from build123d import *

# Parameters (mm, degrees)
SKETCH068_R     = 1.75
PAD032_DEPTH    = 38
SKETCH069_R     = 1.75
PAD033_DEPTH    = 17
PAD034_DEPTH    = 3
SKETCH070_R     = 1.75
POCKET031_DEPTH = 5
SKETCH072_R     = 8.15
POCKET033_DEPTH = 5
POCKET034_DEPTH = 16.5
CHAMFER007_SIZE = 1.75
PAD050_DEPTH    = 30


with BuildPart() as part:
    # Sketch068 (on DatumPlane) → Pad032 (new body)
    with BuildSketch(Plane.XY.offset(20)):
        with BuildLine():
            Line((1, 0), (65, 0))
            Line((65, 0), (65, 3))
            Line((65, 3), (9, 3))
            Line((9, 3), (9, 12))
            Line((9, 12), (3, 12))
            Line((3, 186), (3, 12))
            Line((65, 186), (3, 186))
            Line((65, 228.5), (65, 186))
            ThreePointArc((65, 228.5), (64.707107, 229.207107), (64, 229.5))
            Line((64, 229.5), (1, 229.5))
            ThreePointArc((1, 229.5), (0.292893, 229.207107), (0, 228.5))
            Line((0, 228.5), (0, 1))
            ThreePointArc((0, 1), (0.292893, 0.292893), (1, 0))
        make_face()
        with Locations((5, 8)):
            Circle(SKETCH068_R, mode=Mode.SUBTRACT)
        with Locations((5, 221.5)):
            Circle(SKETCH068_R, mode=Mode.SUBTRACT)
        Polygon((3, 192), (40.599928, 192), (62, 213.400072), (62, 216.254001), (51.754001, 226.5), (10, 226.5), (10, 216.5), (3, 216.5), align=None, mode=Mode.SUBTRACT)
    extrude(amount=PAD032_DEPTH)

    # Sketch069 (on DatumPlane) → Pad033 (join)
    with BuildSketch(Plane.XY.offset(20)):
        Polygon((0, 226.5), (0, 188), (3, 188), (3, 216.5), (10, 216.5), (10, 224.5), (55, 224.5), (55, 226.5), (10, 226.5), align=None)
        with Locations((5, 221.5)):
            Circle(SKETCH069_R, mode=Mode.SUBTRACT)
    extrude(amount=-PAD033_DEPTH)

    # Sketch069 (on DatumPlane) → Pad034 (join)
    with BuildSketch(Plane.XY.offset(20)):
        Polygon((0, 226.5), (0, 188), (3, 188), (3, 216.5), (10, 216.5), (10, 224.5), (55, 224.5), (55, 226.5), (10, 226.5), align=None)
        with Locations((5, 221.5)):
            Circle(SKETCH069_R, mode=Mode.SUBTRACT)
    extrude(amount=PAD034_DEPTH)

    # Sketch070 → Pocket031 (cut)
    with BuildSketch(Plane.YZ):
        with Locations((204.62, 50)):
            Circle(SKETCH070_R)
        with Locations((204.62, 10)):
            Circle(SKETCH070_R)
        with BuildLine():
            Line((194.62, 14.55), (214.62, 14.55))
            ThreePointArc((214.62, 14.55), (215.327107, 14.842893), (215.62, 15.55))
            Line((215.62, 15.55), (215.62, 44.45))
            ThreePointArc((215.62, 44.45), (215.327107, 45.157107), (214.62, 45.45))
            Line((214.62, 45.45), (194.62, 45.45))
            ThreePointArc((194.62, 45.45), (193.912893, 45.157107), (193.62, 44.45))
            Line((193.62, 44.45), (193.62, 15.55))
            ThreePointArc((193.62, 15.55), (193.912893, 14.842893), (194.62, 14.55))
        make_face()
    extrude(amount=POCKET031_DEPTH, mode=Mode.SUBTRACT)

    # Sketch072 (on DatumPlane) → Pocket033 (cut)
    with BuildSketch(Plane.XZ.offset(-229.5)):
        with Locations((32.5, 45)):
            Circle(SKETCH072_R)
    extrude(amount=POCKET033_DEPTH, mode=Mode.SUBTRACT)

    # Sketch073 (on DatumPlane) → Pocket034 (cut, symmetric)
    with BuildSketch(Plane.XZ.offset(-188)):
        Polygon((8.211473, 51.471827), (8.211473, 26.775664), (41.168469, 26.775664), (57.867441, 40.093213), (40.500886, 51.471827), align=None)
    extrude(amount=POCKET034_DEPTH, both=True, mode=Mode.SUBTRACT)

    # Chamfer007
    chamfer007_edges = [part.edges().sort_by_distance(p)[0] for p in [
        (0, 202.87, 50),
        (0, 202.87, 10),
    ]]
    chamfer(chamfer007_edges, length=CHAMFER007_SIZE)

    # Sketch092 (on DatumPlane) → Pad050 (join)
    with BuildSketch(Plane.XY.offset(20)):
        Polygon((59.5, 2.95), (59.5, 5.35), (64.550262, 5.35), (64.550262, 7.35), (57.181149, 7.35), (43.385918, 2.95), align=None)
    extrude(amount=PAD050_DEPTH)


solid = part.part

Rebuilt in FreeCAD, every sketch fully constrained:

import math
import FreeCAD as App
import Part
import Sketcher
from FreeCAD import Vector
Q = App.Units.Quantity


def edges_at(feature, points):
    """Names of the edges that pass closest to the given points."""
    edges = feature.Shape.Edges
    near = lambda p: min(range(len(edges)), key=lambda i: edges[i].distToShape(Part.Vertex(*p))[0])
    return sorted({f"Edge{near(p) + 1}" for p in points})


def add_polygon(sketch, points):
    """Adds a closed chain of lines whose ends are joined by coincident constraints."""
    first, n = sketch.GeometryCount, len(points)
    for a, b in zip(points, points[1:] + points[:1]):
        sketch.addGeometry(Part.LineSegment(App.Vector(*a, 0), App.Vector(*b, 0)), False)
    for i in range(n):
        sketch.addConstraint(Sketcher.Constraint("Coincident", first + i, 2, first + (i + 1) % n, 1))

doc = App.newDocument("Part")
body = doc.addObject("PartDesign::Body", "Body")

sketch1 = body.newObject("Sketcher::SketchObject", "Sketch")
sketch1.AttachmentSupport = (doc.getObject("XY_Plane"), [""])
sketch1.MapMode = "FlatFace"
sketch1.AttachmentOffset = App.Placement(Vector(0, 0, 20), App.Rotation())
sketch1.addGeometry(Part.LineSegment(Vector(1, 0, 0), Vector(65, 0, 0)), False)
sketch1.addGeometry(Part.LineSegment(Vector(65, 0, 0), Vector(65, 3, 0)), False)
sketch1.addGeometry(Part.LineSegment(Vector(65, 3, 0), Vector(9, 3, 0)), False)
sketch1.addGeometry(Part.LineSegment(Vector(9, 3, 0), Vector(9, 12, 0)), False)
sketch1.addGeometry(Part.LineSegment(Vector(9, 12, 0), Vector(3, 12, 0)), False)
sketch1.addGeometry(Part.LineSegment(Vector(3, 12, 0), Vector(3, 186, 0)), False)
sketch1.addGeometry(Part.LineSegment(Vector(3, 186, 0), Vector(65, 186, 0)), False)
sketch1.addGeometry(Part.LineSegment(Vector(65, 186, 0), Vector(65, 228.5, 0)), False)
sketch1.addGeometry(Part.ArcOfCircle(Part.Circle(Vector(64, 228.5, 0), Vector(0, 0, 1), 1), math.radians(0), math.radians(90)), False)
sketch1.addGeometry(Part.LineSegment(Vector(64, 229.5, 0), Vector(1, 229.5, 0)), False)
sketch1.addGeometry(Part.ArcOfCircle(Part.Circle(Vector(1, 228.5, 0), Vector(0, 0, 1), 1), math.radians(90), math.radians(180)), False)
sketch1.addGeometry(Part.LineSegment(Vector(0, 228.5, 0), Vector(0, 1, 0)), False)
sketch1.addGeometry(Part.ArcOfCircle(Part.Circle(Vector(1, 1, 0), Vector(0, 0, 1), 1), math.radians(180), math.radians(270)), False)
sketch1.addGeometry(Part.Circle(Vector(5, 8, 0), Vector(0, 0, 1), 1.8), False)
sketch1.addGeometry(Part.Circle(Vector(5, 221.5, 0), Vector(0, 0, 1), 1.8), False)
add_polygon(sketch1, [(40.6, 192), (3, 192), (3, 216.5), (10, 216.5), (10, 226.5), (51.8, 226.5), (62, 216.3), (62, 213.4)])
sketch1.addConstraint(Sketcher.Constraint("Coincident", 0, 2, 1, 1))
sketch1.addConstraint(Sketcher.Constraint("Coincident", 1, 2, 2, 1))
sketch1.addConstraint(Sketcher.Constraint("Coincident", 2, 2, 3, 1))
sketch1.addConstraint(Sketcher.Constraint("Coincident", 3, 2, 4, 1))
sketch1.addConstraint(Sketcher.Constraint("Coincident", 4, 2, 5, 1))
sketch1.addConstraint(Sketcher.Constraint("Coincident", 5, 2, 6, 1))
sketch1.addConstraint(Sketcher.Constraint("Coincident", 6, 2, 7, 1))
sketch1.addConstraint(Sketcher.Constraint("Tangent", 7, 2, 8, 1))
sketch1.addConstraint(Sketcher.Constraint("Tangent", 8, 2, 9, 1))
sketch1.addConstraint(Sketcher.Constraint("Tangent", 9, 2, 10, 1))
sketch1.addConstraint(Sketcher.Constraint("Tangent", 10, 2, 11, 1))
sketch1.addConstraint(Sketcher.Constraint("Tangent", 11, 2, 12, 1))
sketch1.addConstraint(Sketcher.Constraint("Tangent", 12, 2, 0, 1))
sketch1.addConstraint(Sketcher.Constraint("Horizontal", 0))
sketch1.addConstraint(Sketcher.Constraint("Vertical", 1))
sketch1.addConstraint(Sketcher.Constraint("Horizontal", 2))
sketch1.addConstraint(Sketcher.Constraint("Vertical", 3))
sketch1.addConstraint(Sketcher.Constraint("Horizontal", 4))
sketch1.addConstraint(Sketcher.Constraint("Vertical", 5))
sketch1.addConstraint(Sketcher.Constraint("Horizontal", 6))
sketch1.addConstraint(Sketcher.Constraint("Vertical", 7))
sketch1.addConstraint(Sketcher.Constraint("Horizontal", 9))
sketch1.addConstraint(Sketcher.Constraint("Vertical", 11))
sketch1.addConstraint(Sketcher.Constraint("Horizontal", 15))
sketch1.addConstraint(Sketcher.Constraint("Vertical", 16))
sketch1.addConstraint(Sketcher.Constraint("Horizontal", 17))
sketch1.addConstraint(Sketcher.Constraint("Vertical", 18))
sketch1.addConstraint(Sketcher.Constraint("Horizontal", 19))
sketch1.addConstraint(Sketcher.Constraint("Vertical", 21))
sketch1.addConstraint(Sketcher.Constraint("Equal", 8, 10))
sketch1.addConstraint(Sketcher.Constraint("Equal", 10, 12))
sketch1.addConstraint(Sketcher.Constraint("Equal", 13, 14))
sketch1.addConstraint(Sketcher.Constraint("PointOnObject", 0, 2, -1))
sketch1.addConstraint(Sketcher.Constraint("PointOnObject", 10, 2, -2))
sketch1.addConstraint(Sketcher.Constraint("Perpendicular", 20, 22))
sketch1.addConstraint(Sketcher.Constraint("Vertical", 13, 3, 14, 3))
sketch1.addConstraint(Sketcher.Constraint("Vertical", 1, 2, 6, 2))
sketch1.addConstraint(Sketcher.Constraint("Vertical", 5, 2, 15, 2))
sketch1.addConstraint(Sketcher.Constraint("Radius", 8, 0.999999))
sketch1.addConstraint(Sketcher.Constraint("Diameter", 13, 3.5))
sketch1.addConstraint(Sketcher.Constraint("DistanceX", 0, 1, 0, 2, 64.0))
sketch1.addConstraint(Sketcher.Constraint("DistanceX", 2, 2, 2, 1, 56.0))
sketch1.addConstraint(Sketcher.Constraint("DistanceX", 4, 2, 4, 1, 6.0))
sketch1.addConstraint(Sketcher.Constraint("DistanceX", 17, 1, 17, 2, 7.0))
sketch1.addConstraint(Sketcher.Constraint("DistanceY", 1, 1, 1, 2, 3.0))
sketch1.addConstraint(Sketcher.Constraint("DistanceY", 3, 1, 3, 2, 9.0))
sketch1.addConstraint(Sketcher.Constraint("DistanceY", 5, 1, 5, 2, 174.0))
sketch1.addConstraint(Sketcher.Constraint("DistanceY", 18, 1, 18, 2, 10.0))
sketch1.addConstraint(Sketcher.Constraint("Angle", 20, Q("-45 deg")))
sketch1.addConstraint(Sketcher.Constraint("DistanceY", 7, 1, 7, 2, 42.5))
sketch1.addConstraint(Sketcher.Constraint("DistanceY", 16, 1, 16, 2, 24.5))
sketch1.addConstraint(Sketcher.Constraint("DistanceX", -1, 1, 13, 3, 5.0))
sketch1.addConstraint(Sketcher.Constraint("DistanceY", -1, 1, 13, 3, 8.0))
sketch1.addConstraint(Sketcher.Constraint("DistanceY", -1, 1, 15, 2, 192.0))
sketch1.addConstraint(Sketcher.Constraint("DistanceX", -1, 1, 20, 2, 62.0))
sketch1.addConstraint(Sketcher.Constraint("DistanceY", 14, 3, 10, 3, 7.000001))
sketch1.addConstraint(Sketcher.Constraint("DistanceX", 19, 1, 19, 2, 41.754001))
sketch1.addConstraint(Sketcher.Constraint("DistanceY", 21, 2, 21, 1, 2.853929))
pad1 = body.newObject("PartDesign::Pad", "Pad")
pad1.Profile = sketch1
pad1.Length = 38

sketch2 = body.newObject("Sketcher::SketchObject", "Sketch001")
sketch2.AttachmentSupport = (doc.getObject("XY_Plane"), [""])
sketch2.MapMode = "FlatFace"
sketch2.AttachmentOffset = App.Placement(Vector(0, 0, 20), App.Rotation())
add_polygon(sketch2, [(0, 226.5), (0, 188), (3, 188), (3, 216.5), (10, 216.5), (10, 224.5), (55, 224.5), (55, 226.5)])
sketch2.addGeometry(Part.Circle(Vector(5, 221.5, 0), Vector(0, 0, 1), 1.8), False)
sketch2.addConstraint(Sketcher.Constraint("Vertical", 0))
sketch2.addConstraint(Sketcher.Constraint("Horizontal", 1))
sketch2.addConstraint(Sketcher.Constraint("Vertical", 2))
sketch2.addConstraint(Sketcher.Constraint("Horizontal", 3))
sketch2.addConstraint(Sketcher.Constraint("Vertical", 4))
sketch2.addConstraint(Sketcher.Constraint("Horizontal", 5))
sketch2.addConstraint(Sketcher.Constraint("Vertical", 6))
sketch2.addConstraint(Sketcher.Constraint("Horizontal", 7))
sketch2.addConstraint(Sketcher.Constraint("PointOnObject", 0, 2, -2))
sketch2.addConstraint(Sketcher.Constraint("Diameter", 8, 3.5))
sketch2.addConstraint(Sketcher.Constraint("DistanceX", 1, 1, 1, 2, 3.0))
sketch2.addConstraint(Sketcher.Constraint("DistanceX", 3, 1, 3, 2, 7.0))
sketch2.addConstraint(Sketcher.Constraint("DistanceX", 5, 1, 5, 2, 45.0))
sketch2.addConstraint(Sketcher.Constraint("DistanceY", 4, 1, 4, 2, 8.0))
sketch2.addConstraint(Sketcher.Constraint("DistanceY", 6, 1, 6, 2, 2.0))
sketch2.addConstraint(Sketcher.Constraint("DistanceY", 0, 2, 0, 1, 38.5))
sketch2.addConstraint(Sketcher.Constraint("DistanceX", -1, 1, 8, 3, 5.0))
sketch2.addConstraint(Sketcher.Constraint("DistanceY", -1, 1, 0, 2, 188.0))
sketch2.addConstraint(Sketcher.Constraint("DistanceY", 2, 2, 8, 3, 5.0))
pad2 = body.newObject("PartDesign::Pad", "Pad001")
pad2.Profile = sketch2
pad2.Length = 17
pad2.Reversed = True

sketch3 = body.newObject("Sketcher::SketchObject", "Sketch002")
sketch3.AttachmentSupport = (doc.getObject("XY_Plane"), [""])
sketch3.MapMode = "FlatFace"
sketch3.AttachmentOffset = App.Placement(Vector(0, 0, 20), App.Rotation())
add_polygon(sketch3, [(0, 226.5), (0, 188), (3, 188), (3, 216.5), (10, 216.5), (10, 224.5), (55, 224.5), (55, 226.5)])
sketch3.addGeometry(Part.Circle(Vector(5, 221.5, 0), Vector(0, 0, 1), 1.8), False)
sketch3.addConstraint(Sketcher.Constraint("Vertical", 0))
sketch3.addConstraint(Sketcher.Constraint("Horizontal", 1))
sketch3.addConstraint(Sketcher.Constraint("Vertical", 2))
sketch3.addConstraint(Sketcher.Constraint("Horizontal", 3))
sketch3.addConstraint(Sketcher.Constraint("Vertical", 4))
sketch3.addConstraint(Sketcher.Constraint("Horizontal", 5))
sketch3.addConstraint(Sketcher.Constraint("Vertical", 6))
sketch3.addConstraint(Sketcher.Constraint("Horizontal", 7))
sketch3.addConstraint(Sketcher.Constraint("PointOnObject", 0, 2, -2))
sketch3.addConstraint(Sketcher.Constraint("Diameter", 8, 3.5))
sketch3.addConstraint(Sketcher.Constraint("DistanceX", 1, 1, 1, 2, 3.0))
sketch3.addConstraint(Sketcher.Constraint("DistanceX", 3, 1, 3, 2, 7.0))
sketch3.addConstraint(Sketcher.Constraint("DistanceX", 5, 1, 5, 2, 45.0))
sketch3.addConstraint(Sketcher.Constraint("DistanceY", 4, 1, 4, 2, 8.0))
sketch3.addConstraint(Sketcher.Constraint("DistanceY", 6, 1, 6, 2, 2.0))
sketch3.addConstraint(Sketcher.Constraint("DistanceY", 0, 2, 0, 1, 38.5))
sketch3.addConstraint(Sketcher.Constraint("DistanceX", -1, 1, 8, 3, 5.0))
sketch3.addConstraint(Sketcher.Constraint("DistanceY", -1, 1, 0, 2, 188.0))
sketch3.addConstraint(Sketcher.Constraint("DistanceY", 2, 2, 8, 3, 5.0))
pad3 = body.newObject("PartDesign::Pad", "Pad002")
pad3.Profile = sketch3
pad3.Length = 3

sketch4 = body.newObject("Sketcher::SketchObject", "Sketch003")
sketch4.AttachmentSupport = (doc.getObject("YZ_Plane"), [""])
sketch4.MapMode = "FlatFace"
sketch4.addGeometry(Part.Circle(Vector(204.6, 50, 0), Vector(0, 0, 1), 1.8), False)
sketch4.addGeometry(Part.Circle(Vector(204.6, 10, 0), Vector(0, 0, 1), 1.8), False)
sketch4.addGeometry(Part.LineSegment(Vector(194.6, 14.6, 0), Vector(214.6, 14.6, 0)), False)
sketch4.addGeometry(Part.ArcOfCircle(Part.Circle(Vector(214.6, 15.5, 0), Vector(0, 0, 1), 1), math.radians(-90), math.radians(0)), False)
sketch4.addGeometry(Part.LineSegment(Vector(215.6, 15.6, 0), Vector(215.6, 44.5, 0)), False)
sketch4.addGeometry(Part.ArcOfCircle(Part.Circle(Vector(214.6, 44.5, 0), Vector(0, 0, 1), 1), math.radians(0), math.radians(90)), False)
sketch4.addGeometry(Part.LineSegment(Vector(214.6, 45.5, 0), Vector(194.6, 45.5, 0)), False)
sketch4.addGeometry(Part.ArcOfCircle(Part.Circle(Vector(194.6, 44.5, 0), Vector(0, 0, 1), 1), math.radians(90), math.radians(180)), False)
sketch4.addGeometry(Part.LineSegment(Vector(193.6, 44.5, 0), Vector(193.6, 15.6, 0)), False)
sketch4.addGeometry(Part.ArcOfCircle(Part.Circle(Vector(194.6, 15.5, 0), Vector(0, 0, 1), 1), math.radians(180), math.radians(270)), False)
sketch4.addConstraint(Sketcher.Constraint("Tangent", 2, 2, 3, 1))
sketch4.addConstraint(Sketcher.Constraint("Tangent", 3, 2, 4, 1))
sketch4.addConstraint(Sketcher.Constraint("Tangent", 4, 2, 5, 1))
sketch4.addConstraint(Sketcher.Constraint("Tangent", 5, 2, 6, 1))
sketch4.addConstraint(Sketcher.Constraint("Tangent", 6, 2, 7, 1))
sketch4.addConstraint(Sketcher.Constraint("Tangent", 7, 2, 8, 1))
sketch4.addConstraint(Sketcher.Constraint("Tangent", 8, 2, 9, 1))
sketch4.addConstraint(Sketcher.Constraint("Tangent", 9, 2, 2, 1))
sketch4.addConstraint(Sketcher.Constraint("Horizontal", 2))
sketch4.addConstraint(Sketcher.Constraint("Vertical", 4))
sketch4.addConstraint(Sketcher.Constraint("Horizontal", 6))
sketch4.addConstraint(Sketcher.Constraint("Vertical", 8))
sketch4.addConstraint(Sketcher.Constraint("Equal", 0, 1))
sketch4.addConstraint(Sketcher.Constraint("Equal", 3, 5))
sketch4.addConstraint(Sketcher.Constraint("Equal", 5, 7))
sketch4.addConstraint(Sketcher.Constraint("Equal", 7, 9))
sketch4.addConstraint(Sketcher.Constraint("Vertical", 0, 3, 1, 3))
sketch4.addConstraint(Sketcher.Constraint("Radius", 3, 0.999999))
sketch4.addConstraint(Sketcher.Constraint("Diameter", 0, 3.5))
sketch4.addConstraint(Sketcher.Constraint("DistanceX", 2, 1, 2, 2, 20.0))
sketch4.addConstraint(Sketcher.Constraint("DistanceY", 4, 1, 4, 2, 28.9))
sketch4.addConstraint(Sketcher.Constraint("DistanceY", -1, 1, 0, 3, 50.0))
sketch4.addConstraint(Sketcher.Constraint("DistanceY", -1, 1, 1, 3, 10.0))
sketch4.addConstraint(Sketcher.Constraint("DistanceX", 1, 3, 3, 3, 10.000001))
sketch4.addConstraint(Sketcher.Constraint("DistanceX", -1, 1, 0, 3, 204.62))
sketch4.addConstraint(Sketcher.Constraint("DistanceY", -1, 1, 3, 3, 15.549999))
pocket1 = body.newObject("PartDesign::Pocket", "Pocket")
pocket1.Profile = sketch4
pocket1.Length = 5
pocket1.Reversed = True

sketch5 = body.newObject("Sketcher::SketchObject", "Sketch004")
sketch5.AttachmentSupport = (doc.getObject("XZ_Plane"), [""])
sketch5.MapMode = "FlatFace"
sketch5.AttachmentOffset = App.Placement(Vector(0, 0, -229.5), App.Rotation())
sketch5.addGeometry(Part.Circle(Vector(32, 45, 0), Vector(0, 0, 1), 8), False)
sketch5.addConstraint(Sketcher.Constraint("Diameter", 0, 16.3))
sketch5.addConstraint(Sketcher.Constraint("DistanceY", -1, 1, 0, 3, 45.0))
sketch5.addConstraint(Sketcher.Constraint("DistanceX", -1, 1, 0, 3, 32.5))
pocket2 = body.newObject("PartDesign::Pocket", "Pocket001")
pocket2.Profile = sketch5
pocket2.Length = 5
pocket2.Reversed = True

sketch6 = body.newObject("Sketcher::SketchObject", "Sketch005")
sketch6.AttachmentSupport = (doc.getObject("XZ_Plane"), [""])
sketch6.MapMode = "FlatFace"
sketch6.AttachmentOffset = App.Placement(Vector(0, 0, -188), App.Rotation())
add_polygon(sketch6, [(8, 51), (8, 27), (41, 27), (58, 40), (41, 51)])
sketch6.addConstraint(Sketcher.Constraint("Vertical", 0))
sketch6.addConstraint(Sketcher.Constraint("Horizontal", 1))
sketch6.addConstraint(Sketcher.Constraint("Horizontal", 4))
sketch6.addConstraint(Sketcher.Constraint("Distance", 2, 21.359138))
sketch6.addConstraint(Sketcher.Constraint("DistanceX", 1, 1, 1, 2, 32.956996))
sketch6.addConstraint(Sketcher.Constraint("DistanceX", 4, 2, 4, 1, 32.289413))
sketch6.addConstraint(Sketcher.Constraint("DistanceY", 0, 2, 0, 1, 24.696163))
sketch6.addConstraint(Sketcher.Constraint("DistanceX", -1, 1, 1, 2, 41.168469))
sketch6.addConstraint(Sketcher.Constraint("DistanceX", -1, 1, 2, 2, 57.867441))
sketch6.addConstraint(Sketcher.Constraint("DistanceY", -1, 1, 0, 2, 26.775664))
pocket3 = body.newObject("PartDesign::Pocket", "Pocket002")
pocket3.Profile = sketch6
pocket3.Length = 33
pocket3.Midplane = True
doc.recompute()

chamfer = body.newObject("PartDesign::Chamfer", "Chamfer")
chamfer.Base = (pocket3, edges_at(pocket3, [(0, 202.87, 50), (0, 202.87, 10)]))
chamfer.Size = 1.75

sketch7 = body.newObject("Sketcher::SketchObject", "Sketch006")
sketch7.AttachmentSupport = (doc.getObject("XY_Plane"), [""])
sketch7.MapMode = "FlatFace"
sketch7.AttachmentOffset = App.Placement(Vector(0, 0, 20), App.Rotation())
add_polygon(sketch7, [(59.5, 3), (59.5, 5.3), (64.6, 5.3), (64.6, 7.3), (57.2, 7.3), (43.4, 3)])
sketch7.addConstraint(Sketcher.Constraint("Vertical", 0))
sketch7.addConstraint(Sketcher.Constraint("Horizontal", 1))
sketch7.addConstraint(Sketcher.Constraint("Vertical", 2))
sketch7.addConstraint(Sketcher.Constraint("Horizontal", 3))
sketch7.addConstraint(Sketcher.Constraint("Horizontal", 5))
sketch7.addConstraint(Sketcher.Constraint("DistanceY", 2, 1, 2, 2, 2.0))
sketch7.addConstraint(Sketcher.Constraint("DistanceY", 0, 1, 0, 2, 2.4))
sketch7.addConstraint(Sketcher.Constraint("DistanceX", -1, 1, 0, 2, 59.5))
sketch7.addConstraint(Sketcher.Constraint("DistanceY", -1, 1, 0, 2, 5.35))
sketch7.addConstraint(Sketcher.Constraint("Distance", 4, 14.479931))
sketch7.addConstraint(Sketcher.Constraint("DistanceX", 1, 1, 1, 2, 5.050262))
sketch7.addConstraint(Sketcher.Constraint("DistanceX", 3, 2, 3, 1, 7.369113))
pad4 = body.newObject("PartDesign::Pad", "Pad003")
pad4.Profile = sketch7
pad4.Length = 30

doc.recompute()
